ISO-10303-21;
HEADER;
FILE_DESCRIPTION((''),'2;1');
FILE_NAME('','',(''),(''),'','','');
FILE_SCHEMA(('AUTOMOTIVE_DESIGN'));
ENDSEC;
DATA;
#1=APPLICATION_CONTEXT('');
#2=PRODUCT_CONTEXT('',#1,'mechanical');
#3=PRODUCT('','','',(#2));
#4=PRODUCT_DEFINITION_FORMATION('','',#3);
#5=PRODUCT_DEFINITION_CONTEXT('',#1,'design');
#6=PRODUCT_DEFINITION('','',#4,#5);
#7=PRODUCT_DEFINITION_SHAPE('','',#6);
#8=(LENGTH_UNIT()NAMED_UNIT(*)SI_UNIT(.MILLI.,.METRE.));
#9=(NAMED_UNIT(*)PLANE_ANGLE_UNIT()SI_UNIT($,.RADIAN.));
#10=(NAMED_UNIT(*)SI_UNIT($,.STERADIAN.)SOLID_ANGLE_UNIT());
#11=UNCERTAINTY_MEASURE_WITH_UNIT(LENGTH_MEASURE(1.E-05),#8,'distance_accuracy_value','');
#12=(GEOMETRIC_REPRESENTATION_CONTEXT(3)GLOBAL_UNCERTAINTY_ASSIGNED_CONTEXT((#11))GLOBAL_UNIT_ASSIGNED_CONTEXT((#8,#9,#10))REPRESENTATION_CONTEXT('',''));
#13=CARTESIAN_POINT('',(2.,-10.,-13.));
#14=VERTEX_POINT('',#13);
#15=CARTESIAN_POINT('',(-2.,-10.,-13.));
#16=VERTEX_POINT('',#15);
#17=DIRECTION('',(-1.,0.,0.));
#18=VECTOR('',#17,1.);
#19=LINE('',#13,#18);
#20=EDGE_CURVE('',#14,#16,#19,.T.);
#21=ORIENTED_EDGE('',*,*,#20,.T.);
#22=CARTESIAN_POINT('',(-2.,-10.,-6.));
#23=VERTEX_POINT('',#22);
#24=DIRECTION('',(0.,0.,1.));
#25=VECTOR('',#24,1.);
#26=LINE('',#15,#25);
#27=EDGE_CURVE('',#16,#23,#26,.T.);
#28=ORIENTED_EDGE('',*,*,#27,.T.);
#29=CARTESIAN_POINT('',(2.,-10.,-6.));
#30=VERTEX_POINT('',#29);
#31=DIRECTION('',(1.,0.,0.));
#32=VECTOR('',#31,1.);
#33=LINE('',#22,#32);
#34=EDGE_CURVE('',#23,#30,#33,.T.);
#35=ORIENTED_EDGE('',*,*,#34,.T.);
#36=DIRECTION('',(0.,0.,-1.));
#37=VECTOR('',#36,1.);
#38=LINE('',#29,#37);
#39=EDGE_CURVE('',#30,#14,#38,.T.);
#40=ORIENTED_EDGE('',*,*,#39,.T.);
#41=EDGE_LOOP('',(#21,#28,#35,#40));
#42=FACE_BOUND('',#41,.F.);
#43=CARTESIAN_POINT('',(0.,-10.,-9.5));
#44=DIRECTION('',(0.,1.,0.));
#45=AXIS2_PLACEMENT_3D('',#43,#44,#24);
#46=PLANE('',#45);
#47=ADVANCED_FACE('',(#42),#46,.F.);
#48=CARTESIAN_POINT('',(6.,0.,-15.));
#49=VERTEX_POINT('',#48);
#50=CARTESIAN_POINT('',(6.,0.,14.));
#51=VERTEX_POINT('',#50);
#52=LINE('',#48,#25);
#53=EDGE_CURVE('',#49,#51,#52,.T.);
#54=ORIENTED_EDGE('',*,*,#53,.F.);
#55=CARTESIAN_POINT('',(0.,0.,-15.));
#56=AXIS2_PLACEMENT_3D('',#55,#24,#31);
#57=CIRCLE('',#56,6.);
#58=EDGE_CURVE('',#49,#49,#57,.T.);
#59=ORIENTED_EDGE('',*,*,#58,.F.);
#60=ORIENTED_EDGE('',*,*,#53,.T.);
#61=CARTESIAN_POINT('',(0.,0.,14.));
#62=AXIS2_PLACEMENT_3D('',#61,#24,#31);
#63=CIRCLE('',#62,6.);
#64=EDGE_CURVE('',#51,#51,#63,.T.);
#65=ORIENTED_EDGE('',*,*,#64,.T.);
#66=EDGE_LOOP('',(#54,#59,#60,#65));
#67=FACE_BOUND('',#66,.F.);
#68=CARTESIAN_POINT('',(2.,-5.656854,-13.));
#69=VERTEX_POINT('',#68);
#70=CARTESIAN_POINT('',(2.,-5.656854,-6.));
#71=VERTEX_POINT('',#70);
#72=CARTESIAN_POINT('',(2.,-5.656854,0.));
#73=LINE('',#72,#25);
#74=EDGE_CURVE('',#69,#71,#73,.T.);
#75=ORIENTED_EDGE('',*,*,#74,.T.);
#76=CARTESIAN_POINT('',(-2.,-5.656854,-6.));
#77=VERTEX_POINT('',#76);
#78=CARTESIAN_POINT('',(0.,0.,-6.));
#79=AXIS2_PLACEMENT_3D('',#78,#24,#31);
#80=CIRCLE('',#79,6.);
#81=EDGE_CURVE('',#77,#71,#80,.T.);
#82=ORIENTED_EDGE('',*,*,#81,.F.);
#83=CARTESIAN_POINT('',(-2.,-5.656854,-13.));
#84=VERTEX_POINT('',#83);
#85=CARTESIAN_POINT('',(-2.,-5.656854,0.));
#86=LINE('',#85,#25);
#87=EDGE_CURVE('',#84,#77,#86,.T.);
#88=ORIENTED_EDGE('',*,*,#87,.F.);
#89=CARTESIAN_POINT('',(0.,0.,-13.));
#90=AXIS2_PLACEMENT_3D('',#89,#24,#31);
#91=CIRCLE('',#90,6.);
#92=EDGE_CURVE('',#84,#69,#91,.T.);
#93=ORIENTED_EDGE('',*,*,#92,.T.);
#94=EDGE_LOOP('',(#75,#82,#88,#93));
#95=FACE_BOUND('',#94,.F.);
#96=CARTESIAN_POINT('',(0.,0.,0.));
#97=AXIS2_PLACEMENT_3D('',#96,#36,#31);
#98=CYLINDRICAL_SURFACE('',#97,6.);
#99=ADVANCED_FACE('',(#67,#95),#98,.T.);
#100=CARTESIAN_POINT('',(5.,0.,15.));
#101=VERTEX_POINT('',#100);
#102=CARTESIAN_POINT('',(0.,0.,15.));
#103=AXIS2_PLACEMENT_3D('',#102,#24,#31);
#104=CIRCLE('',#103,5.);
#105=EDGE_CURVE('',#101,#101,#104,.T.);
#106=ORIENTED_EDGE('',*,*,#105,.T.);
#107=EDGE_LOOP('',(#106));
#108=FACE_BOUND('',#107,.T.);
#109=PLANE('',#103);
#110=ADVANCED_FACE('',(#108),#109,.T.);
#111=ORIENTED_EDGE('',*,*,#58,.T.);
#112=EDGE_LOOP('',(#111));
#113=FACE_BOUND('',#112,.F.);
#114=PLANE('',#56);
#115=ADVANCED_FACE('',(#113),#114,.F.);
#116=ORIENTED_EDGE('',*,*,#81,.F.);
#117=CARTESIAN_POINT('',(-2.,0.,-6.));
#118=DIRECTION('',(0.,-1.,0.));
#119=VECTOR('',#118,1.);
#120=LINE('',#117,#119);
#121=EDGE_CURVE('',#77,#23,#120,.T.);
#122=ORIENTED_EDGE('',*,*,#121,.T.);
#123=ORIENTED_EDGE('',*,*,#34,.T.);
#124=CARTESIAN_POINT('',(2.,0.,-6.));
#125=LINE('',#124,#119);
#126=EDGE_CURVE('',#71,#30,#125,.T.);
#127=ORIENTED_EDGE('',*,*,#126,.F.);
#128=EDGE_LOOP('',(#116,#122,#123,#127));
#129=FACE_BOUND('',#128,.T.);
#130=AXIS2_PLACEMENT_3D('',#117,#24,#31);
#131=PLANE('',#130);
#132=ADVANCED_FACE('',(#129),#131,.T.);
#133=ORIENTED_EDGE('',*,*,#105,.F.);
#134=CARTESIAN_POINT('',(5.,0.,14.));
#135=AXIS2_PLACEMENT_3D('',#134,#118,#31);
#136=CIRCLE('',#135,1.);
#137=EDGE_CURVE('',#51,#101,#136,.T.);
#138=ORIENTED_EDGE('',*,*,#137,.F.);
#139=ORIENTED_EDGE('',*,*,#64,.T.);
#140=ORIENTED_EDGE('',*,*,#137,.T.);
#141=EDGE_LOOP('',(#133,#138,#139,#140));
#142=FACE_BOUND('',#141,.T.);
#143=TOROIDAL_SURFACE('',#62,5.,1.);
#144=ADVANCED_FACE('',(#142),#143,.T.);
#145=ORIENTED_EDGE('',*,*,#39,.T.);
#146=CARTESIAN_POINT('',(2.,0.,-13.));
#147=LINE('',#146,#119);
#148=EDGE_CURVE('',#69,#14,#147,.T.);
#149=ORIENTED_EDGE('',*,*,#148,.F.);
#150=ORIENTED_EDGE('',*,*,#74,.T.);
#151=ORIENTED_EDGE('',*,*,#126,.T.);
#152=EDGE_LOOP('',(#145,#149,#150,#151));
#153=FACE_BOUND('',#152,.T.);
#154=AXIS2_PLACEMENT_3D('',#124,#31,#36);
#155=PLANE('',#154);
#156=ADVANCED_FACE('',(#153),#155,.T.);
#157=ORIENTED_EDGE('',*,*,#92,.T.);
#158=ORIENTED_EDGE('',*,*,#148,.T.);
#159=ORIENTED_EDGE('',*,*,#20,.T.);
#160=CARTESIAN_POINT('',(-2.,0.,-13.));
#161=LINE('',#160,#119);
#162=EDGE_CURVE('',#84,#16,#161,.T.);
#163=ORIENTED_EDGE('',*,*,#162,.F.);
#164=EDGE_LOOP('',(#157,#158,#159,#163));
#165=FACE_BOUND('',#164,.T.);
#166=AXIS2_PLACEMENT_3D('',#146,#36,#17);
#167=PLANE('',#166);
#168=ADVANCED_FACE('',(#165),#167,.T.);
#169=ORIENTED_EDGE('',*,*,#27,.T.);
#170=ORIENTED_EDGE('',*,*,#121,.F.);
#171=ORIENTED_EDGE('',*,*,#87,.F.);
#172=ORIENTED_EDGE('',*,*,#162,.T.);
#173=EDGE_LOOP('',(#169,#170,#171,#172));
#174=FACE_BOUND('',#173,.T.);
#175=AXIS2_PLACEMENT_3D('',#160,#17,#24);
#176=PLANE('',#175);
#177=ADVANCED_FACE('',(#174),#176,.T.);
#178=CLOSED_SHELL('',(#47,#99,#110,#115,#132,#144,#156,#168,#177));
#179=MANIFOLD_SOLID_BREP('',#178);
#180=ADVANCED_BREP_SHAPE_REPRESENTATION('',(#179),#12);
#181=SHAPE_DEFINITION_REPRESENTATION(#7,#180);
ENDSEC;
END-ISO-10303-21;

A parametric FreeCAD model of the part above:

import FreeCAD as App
import Part
import Sketcher
Q = App.Units.Quantity


def edges_at(feature, points):
    """Names of the edges that pass closest to the given points."""
    edges = feature.Shape.Edges
    near = lambda p: min(range(len(edges)), key=lambda i: edges[i].distToShape(Part.Vertex(*p))[0])
    return sorted({f"Edge{near(p) + 1}" for p in points})


def add_polygon(sketch, points):
    """Adds a closed chain of lines whose ends are joined by coincident constraints."""
    first, n = sketch.GeometryCount, len(points)
    for a, b in zip(points, points[1:] + points[:1]):
        sketch.addGeometry(Part.LineSegment(App.Vector(*a, 0), App.Vector(*b, 0)), False)
    for i in range(n):
        sketch.addConstraint(Sketcher.Constraint("Coincident", first + i, 2, first + (i + 1) % n, 1))

doc = App.newDocument("Part")
body = doc.addObject("PartDesign::Body", "Body")

# Sketch on XY plane
sketch1 = body.newObject("Sketcher::SketchObject", "Sketch")
sketch1.AttachmentSupport = (doc.getObject("XY_Plane"), [""])
sketch1.MapMode = "FlatFace"
sketch1.addGeometry(Part.Circle(App.Vector(0, 0, 0), App.Vector(0, 0, 1), 6), False)
sketch1.addConstraint([
    Sketcher.Constraint("Coincident", 0, 3, -1, 1),
    Sketcher.Constraint("Diameter", 0, Q("12 mm")),
])
pad1 = body.newObject("PartDesign::Pad", "Pad")
pad1.Profile = sketch1
pad1.Length = 30
pad1.Midplane = True

# Sketch on XZ plane
sketch2 = body.newObject("Sketcher::SketchObject", "Sketch001")
sketch2.AttachmentSupport = (doc.getObject("XZ_Plane"), [""])
sketch2.MapMode = "FlatFace"
add_polygon(sketch2, [(-2, -13), (2, -13), (2, -6), (-2, -6)])  # lines 0-3
sketch2.addConstraint([
    Sketcher.Constraint("Horizontal", 0),
    Sketcher.Constraint("Vertical", 1),
    Sketcher.Constraint("Horizontal", 2),
    Sketcher.Constraint("Vertical", 3),
    Sketcher.Constraint("DistanceX", 0, 1, 0, 2, Q("4 mm")),
    Sketcher.Constraint("DistanceY", 1, 1, 1, 2, Q("7 mm")),
    Sketcher.Constraint("DistanceX", -1, 1, 0, 2, Q("2 mm")),
    Sketcher.Constraint("DistanceY", 0, 2, -1, 1, Q("13 mm")),
])
pad2 = body.newObject("PartDesign::Pad", "Pad001")
pad2.Profile = sketch2
pad2.Length = 10
doc.recompute()

fillet = body.newObject("PartDesign::Fillet", "Fillet")
fillet.Base = (pad2, edges_at(pad2, [(-6, 0, 15)]))
fillet.Radius = 1

doc.recompute()
